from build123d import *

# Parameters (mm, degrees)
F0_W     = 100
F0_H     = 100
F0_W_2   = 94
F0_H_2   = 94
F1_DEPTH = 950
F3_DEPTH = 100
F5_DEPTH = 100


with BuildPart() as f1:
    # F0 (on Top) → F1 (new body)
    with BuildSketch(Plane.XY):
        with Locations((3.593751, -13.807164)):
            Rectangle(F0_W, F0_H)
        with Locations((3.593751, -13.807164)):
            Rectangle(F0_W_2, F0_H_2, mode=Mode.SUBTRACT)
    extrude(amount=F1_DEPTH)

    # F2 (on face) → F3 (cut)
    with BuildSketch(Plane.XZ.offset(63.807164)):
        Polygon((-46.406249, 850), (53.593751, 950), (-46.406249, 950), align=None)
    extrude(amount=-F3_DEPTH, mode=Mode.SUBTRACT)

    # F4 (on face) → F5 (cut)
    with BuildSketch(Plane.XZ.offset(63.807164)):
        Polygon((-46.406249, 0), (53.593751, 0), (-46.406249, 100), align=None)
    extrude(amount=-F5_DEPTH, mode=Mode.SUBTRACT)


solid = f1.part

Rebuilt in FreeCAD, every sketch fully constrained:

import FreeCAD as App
import Part
import Sketcher
from FreeCAD import Vector
Q = App.Units.Quantity

doc = App.newDocument("Part")
params = doc.addObject("Spreadsheet::Sheet", "Params")
for row, (alias, value) in enumerate([
    ("sketch1_width", "100 mm"),
    ("sketch1_width2", "94 mm"),
    ("pad1_length", "950 mm"),
    ("sketch2_width", "100 mm"),
    ("pocket1_length", "100 mm"),
    ("sketch3_width", "100 mm"),
    ("pocket2_length", "100 mm"),
], start=1):
    params.set(f"A{row}", alias)
    params.set(f"B{row}", "=" + value)
    params.setAlias(f"B{row}", alias)

body = doc.addObject("PartDesign::Body", "Body")

# Sketch on XY plane
sketch1 = doc.addObject("Sketcher::SketchObject", "Sketch")
body.addObject(sketch1)
sketch1.AttachmentSupport = (doc.XY_Plane, [""])
sketch1.MapMode = "FlatFace"
sketch1.addGeometry([
    Part.LineSegment(Vector(-46.406249, 36.192836, 0), Vector(-46.406249, -63.807164, 0)),  # 0
    Part.LineSegment(Vector(-46.406249, -63.807164, 0), Vector(53.593751, -63.807164, 0)),  # 1
    Part.LineSegment(Vector(53.593751, -63.807164, 0), Vector(53.593751, 36.192836, 0)),  # 2
    Part.LineSegment(Vector(53.593751, 36.192836, 0), Vector(-46.406249, 36.192836, 0)),  # 3
    Part.LineSegment(Vector(50.593751, -60.807164, 0), Vector(-43.406249, -60.807164, 0)),  # 4
    Part.LineSegment(Vector(-43.406249, -60.807164, 0), Vector(-43.406249, 33.192836, 0)),  # 5
    Part.LineSegment(Vector(-43.406249, 33.192836, 0), Vector(50.593751, 33.192836, 0)),  # 6
    Part.LineSegment(Vector(50.593751, 33.192836, 0), Vector(50.593751, -60.807164, 0)),  # 7
], False)
sketch1.addConstraint([
    Sketcher.Constraint("Coincident", 0, 2, 1, 1),
    Sketcher.Constraint("Coincident", 1, 2, 2, 1),
    Sketcher.Constraint("Coincident", 2, 2, 3, 1),
    Sketcher.Constraint("Coincident", 3, 2, 0, 1),
    Sketcher.Constraint("Coincident", 4, 2, 5, 1),
    Sketcher.Constraint("Coincident", 5, 2, 6, 1),
    Sketcher.Constraint("Coincident", 6, 2, 7, 1),
    Sketcher.Constraint("Coincident", 7, 2, 4, 1),
    Sketcher.Constraint("Vertical", 0),
    Sketcher.Constraint("Horizontal", 1),
    Sketcher.Constraint("Vertical", 2),
    Sketcher.Constraint("Horizontal", 3),
    Sketcher.Constraint("Horizontal", 4),
    Sketcher.Constraint("Vertical", 5),
    Sketcher.Constraint("Horizontal", 6),
    Sketcher.Constraint("Vertical", 7),
    Sketcher.Constraint("Equal", 3, 0),
    Sketcher.Constraint("Equal", 6, 5),
    Sketcher.Constraint("DistanceX", 1, 1, 1, 2, Q("100 mm")),
    Sketcher.Constraint("DistanceX", 4, 2, 4, 1, Q("94 mm")),
    Sketcher.Constraint("DistanceX", 0, 2, 4, 2, Q("3 mm")),
    Sketcher.Constraint("DistanceY", 0, 2, 4, 2, Q("3 mm")),
    Sketcher.Constraint("DistanceX", 0, 2, -1, 1, Q("46.406249 mm")),
    Sketcher.Constraint("DistanceY", 0, 2, -1, 1, Q("63.807164 mm")),
])
sketch1.setExpression("Constraints[18]", "Params.sketch1_width")
sketch1.setExpression("Constraints[19]", "Params.sketch1_width2")
pad1 = doc.addObject("PartDesign::Pad", "Pad")
body.addObject(pad1)
pad1.Profile = sketch1
pad1.setExpression("Length", "Params.pad1_length")

# Sketch on XZ plane
sketch2 = doc.addObject("Sketcher::SketchObject", "Sketch001")
body.addObject(sketch2)
sketch2.AttachmentSupport = (doc.XZ_Plane, [""])
sketch2.MapMode = "FlatFace"
sketch2.AttachmentOffset = App.Placement(Vector(0, 0, 63.807164), App.Rotation())
sketch2.addGeometry([
    Part.LineSegment(Vector(-46.406249, 850, 0), Vector(53.593751, 950, 0)),
    Part.LineSegment(Vector(53.593751, 950, 0), Vector(-46.406249, 950, 0)),
    Part.LineSegment(Vector(-46.406249, 950, 0), Vector(-46.406249, 850, 0)),
], False)
sketch2.addConstraint([
    Sketcher.Constraint("Coincident", 0, 2, 1, 1),
    Sketcher.Constraint("Coincident", 1, 2, 2, 1),
    Sketcher.Constraint("Coincident", 2, 2, 0, 1),
    Sketcher.Constraint("Horizontal", 1),
    Sketcher.Constraint("Vertical", 2),
    Sketcher.Constraint("Equal", 1, 2),
    Sketcher.Constraint("DistanceX", 1, 2, 1, 1, Q("100 mm")),
    Sketcher.Constraint("DistanceY", -1, 1, 0, 2, Q("950 mm")),
    Sketcher.Constraint("DistanceX", -1, 1, 0, 2, Q("53.593751 mm")),
])
sketch2.setExpression("Constraints[6]", "Params.sketch2_width")
pocket1 = doc.addObject("PartDesign::Pocket", "Pocket")
body.addObject(pocket1)
pocket1.Profile = sketch2
pocket1.setExpression("Length", "Params.pocket1_length")

# Sketch on XZ plane
sketch3 = doc.addObject("Sketcher::SketchObject", "Sketch002")
body.addObject(sketch3)
sketch3.AttachmentSupport = (doc.XZ_Plane, [""])
sketch3.MapMode = "FlatFace"
sketch3.AttachmentOffset = App.Placement(Vector(0, 0, 63.807164), App.Rotation())
sketch3.addGeometry([
    Part.LineSegment(Vector(-46.406249, 0, 0), Vector(53.593751, 0, 0)),
    Part.LineSegment(Vector(53.593751, 0, 0), Vector(-46.406249, 100, 0)),
    Part.LineSegment(Vector(-46.406249, 100, 0), Vector(-46.406249, 0, 0)),
], False)
sketch3.addConstraint([
    Sketcher.Constraint("Coincident", 0, 2, 1, 1),
    Sketcher.Constraint("Coincident", 1, 2, 2, 1),
    Sketcher.Constraint("Coincident", 2, 2, 0, 1),
    Sketcher.Constraint("Horizontal", 0),
    Sketcher.Constraint("Vertical", 2),
    Sketcher.Constraint("PointOnObject", 0, 2, -1),
    Sketcher.Constraint("Equal", 0, 2),
    Sketcher.Constraint("DistanceX", 0, 1, 0, 2, Q("100 mm")),
    Sketcher.Constraint("DistanceX", -1, 1, 0, 2, Q("53.593751 mm")),
])
sketch3.setExpression("Constraints[7]", "Params.sketch3_width")
pocket2 = doc.addObject("PartDesign::Pocket", "Pocket001")
body.addObject(pocket2)
pocket2.Profile = sketch3
pocket2.setExpression("Length", "Params.pocket2_length")

doc.recompute()
